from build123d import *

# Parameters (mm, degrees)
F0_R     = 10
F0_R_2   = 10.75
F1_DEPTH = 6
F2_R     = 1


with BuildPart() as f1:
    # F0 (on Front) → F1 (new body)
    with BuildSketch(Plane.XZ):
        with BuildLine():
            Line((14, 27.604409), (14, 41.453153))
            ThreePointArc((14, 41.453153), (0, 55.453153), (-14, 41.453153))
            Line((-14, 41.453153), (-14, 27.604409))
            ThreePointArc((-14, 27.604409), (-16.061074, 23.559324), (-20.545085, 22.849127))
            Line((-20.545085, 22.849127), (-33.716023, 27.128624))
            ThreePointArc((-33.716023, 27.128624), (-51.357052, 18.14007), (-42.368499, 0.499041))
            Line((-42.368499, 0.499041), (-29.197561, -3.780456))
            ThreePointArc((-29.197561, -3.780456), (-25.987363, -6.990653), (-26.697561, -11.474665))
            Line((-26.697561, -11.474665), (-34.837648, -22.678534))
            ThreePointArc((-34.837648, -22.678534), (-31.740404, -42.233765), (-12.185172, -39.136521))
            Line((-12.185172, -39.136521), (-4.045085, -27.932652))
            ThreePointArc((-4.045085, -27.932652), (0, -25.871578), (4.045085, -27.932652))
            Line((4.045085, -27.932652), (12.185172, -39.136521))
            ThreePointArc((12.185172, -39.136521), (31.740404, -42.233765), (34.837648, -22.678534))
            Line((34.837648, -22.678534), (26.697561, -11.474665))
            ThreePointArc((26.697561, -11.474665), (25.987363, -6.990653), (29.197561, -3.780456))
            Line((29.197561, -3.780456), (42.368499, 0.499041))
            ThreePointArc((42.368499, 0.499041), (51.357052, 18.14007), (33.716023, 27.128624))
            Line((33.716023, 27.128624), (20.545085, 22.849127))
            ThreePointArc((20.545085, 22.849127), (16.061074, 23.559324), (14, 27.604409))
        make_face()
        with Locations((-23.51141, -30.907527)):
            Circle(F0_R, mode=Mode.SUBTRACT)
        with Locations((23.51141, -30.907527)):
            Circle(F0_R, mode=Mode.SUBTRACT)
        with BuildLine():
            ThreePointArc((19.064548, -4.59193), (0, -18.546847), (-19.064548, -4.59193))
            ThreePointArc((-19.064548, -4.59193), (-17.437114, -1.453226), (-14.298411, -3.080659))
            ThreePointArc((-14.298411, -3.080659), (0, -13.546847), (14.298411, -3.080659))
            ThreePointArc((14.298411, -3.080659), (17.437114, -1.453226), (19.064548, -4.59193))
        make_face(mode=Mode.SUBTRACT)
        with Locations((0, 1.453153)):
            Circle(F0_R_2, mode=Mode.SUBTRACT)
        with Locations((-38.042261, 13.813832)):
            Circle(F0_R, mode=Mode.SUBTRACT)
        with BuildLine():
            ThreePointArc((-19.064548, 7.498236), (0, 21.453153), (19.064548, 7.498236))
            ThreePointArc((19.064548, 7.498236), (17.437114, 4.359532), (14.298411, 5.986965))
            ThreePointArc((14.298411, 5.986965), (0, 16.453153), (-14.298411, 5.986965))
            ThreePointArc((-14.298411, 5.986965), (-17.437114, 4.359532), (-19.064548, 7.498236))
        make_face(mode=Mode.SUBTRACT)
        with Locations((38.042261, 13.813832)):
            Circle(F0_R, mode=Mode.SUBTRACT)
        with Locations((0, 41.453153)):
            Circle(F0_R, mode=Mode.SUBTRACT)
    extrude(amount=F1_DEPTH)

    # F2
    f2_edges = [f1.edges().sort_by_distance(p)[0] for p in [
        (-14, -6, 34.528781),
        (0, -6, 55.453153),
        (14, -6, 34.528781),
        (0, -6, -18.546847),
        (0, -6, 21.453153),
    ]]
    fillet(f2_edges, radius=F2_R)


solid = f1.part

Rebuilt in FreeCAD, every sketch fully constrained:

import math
import FreeCAD as App
import Part
import Sketcher
Q = App.Units.Quantity


def edges_at(feature, points):
    """Names of the edges that pass closest to the given points."""
    edges = feature.Shape.Edges
    near = lambda p: min(range(len(edges)), key=lambda i: edges[i].distToShape(Part.Vertex(*p))[0])
    return sorted({f"Edge{near(p) + 1}" for p in points})

doc = App.newDocument("Part")
body = doc.addObject("PartDesign::Body", "Body")

# Sketch on XZ plane
sketch1 = doc.addObject("Sketcher::SketchObject", "Sketch")
body.addObject(sketch1)
sketch1.AttachmentSupport = (doc.XZ_Plane, [""])
sketch1.MapMode = "FlatFace"
sketch1.addGeometry([
    Part.LineSegment(App.Vector(14, 27.6, 0), App.Vector(14, 41.5, 0)),  # 0
    Part.ArcOfCircle(Part.Circle(App.Vector(0, 41.5, 0), App.Vector(0, 0, 1), 14), math.radians(0), math.radians(180)),  # 1
    Part.LineSegment(App.Vector(-14, 41.5, 0), App.Vector(-14, 27.6, 0)),  # 2
    Part.ArcOfCircle(Part.Circle(App.Vector(-19, 27.6, 0), App.Vector(0, 0, 1), 5), math.radians(-108), math.radians(0)),  # 3
    Part.LineSegment(App.Vector(-20.5, 22.8, 0), App.Vector(-33.7, 27.1, 0)),  # 4
    Part.ArcOfCircle(Part.Circle(App.Vector(-38, 13.8, 0), App.Vector(0, 0, 1), 14), math.radians(72), math.radians(252)),  # 5
    Part.LineSegment(App.Vector(-42.4, 0.5, 0), App.Vector(-29.2, -3.8, 0)),  # 6
    Part.ArcOfCircle(Part.Circle(App.Vector(-30.7, -8.5, 0), App.Vector(0, 0, 1), 5), math.radians(-36), math.radians(72)),  # 7
    Part.LineSegment(App.Vector(-26.7, -11.5, 0), App.Vector(-34.8, -22.7, 0)),  # 8
    Part.ArcOfCircle(Part.Circle(App.Vector(-23.5, -30.9, 0), App.Vector(0, 0, 1), 14), math.radians(144), math.radians(324)),  # 9
    Part.LineSegment(App.Vector(-12.2, -39.1, 0), App.Vector(-4, -27.9, 0)),  # 10
    Part.ArcOfCircle(Part.Circle(App.Vector(0, -30.9, 0), App.Vector(0, 0, 1), 5), math.radians(36), math.radians(144)),  # 11
    Part.LineSegment(App.Vector(4, -27.9, 0), App.Vector(12.2, -39.1, 0)),  # 12
    Part.ArcOfCircle(Part.Circle(App.Vector(23.5, -30.9, 0), App.Vector(0, 0, 1), 14), math.radians(-144), math.radians(36)),  # 13
    Part.LineSegment(App.Vector(34.8, -22.7, 0), App.Vector(26.7, -11.5, 0)),  # 14
    Part.ArcOfCircle(Part.Circle(App.Vector(30.7, -8.5, 0), App.Vector(0, 0, 1), 5), math.radians(108), math.radians(216)),  # 15
    Part.LineSegment(App.Vector(29.2, -3.8, 0), App.Vector(42.4, 0.5, 0)),  # 16
    Part.ArcOfCircle(Part.Circle(App.Vector(38, 13.8, 0), App.Vector(0, 0, 1), 14), math.radians(-72), math.radians(108)),  # 17
    Part.LineSegment(App.Vector(33.7, 27.1, 0), App.Vector(20.5, 22.8, 0)),  # 18
    Part.ArcOfCircle(Part.Circle(App.Vector(19, 27.6, 0), App.Vector(0, 0, 1), 5), math.radians(180), math.radians(288)),  # 19
    Part.Circle(App.Vector(-23.5, -30.9, 0), App.Vector(0, 0, 1), 10),  # 20
    Part.ArcOfCircle(Part.Circle(App.Vector(16.7, -3.8, 0), App.Vector(0, 0, 1), 2.5), math.radians(-18), math.radians(162)),  # 21
    Part.ArcOfCircle(Part.Circle(App.Vector(0, 1.5, 0), App.Vector(0, 0, 1), 20), math.radians(-162), math.radians(-18)),  # 22
    Part.ArcOfCircle(Part.Circle(App.Vector(-16.7, -3.8, 0), App.Vector(0, 0, 1), 2.5), math.radians(18), math.radians(198)),  # 23
    Part.ArcOfCircle(Part.Circle(App.Vector(0, 1.5, 0), App.Vector(0, 0, 1), 15), math.radians(-162), math.radians(-18)),  # 24
    Part.Circle(App.Vector(23.5, -30.9, 0), App.Vector(0, 0, 1), 10),  # 25
    Part.Circle(App.Vector(0, 1.5, 0), App.Vector(0, 0, 1), 10.8),  # 26
    Part.Circle(App.Vector(-38, 13.8, 0), App.Vector(0, 0, 1), 10),  # 27
    Part.ArcOfCircle(Part.Circle(App.Vector(-16.7, 6.7, 0), App.Vector(0, 0, 1), 2.5), math.radians(162), math.radians(342)),  # 28
    Part.ArcOfCircle(Part.Circle(App.Vector(0, 1.5, 0), App.Vector(0, 0, 1), 20), math.radians(18), math.radians(162)),  # 29
    Part.ArcOfCircle(Part.Circle(App.Vector(16.7, 6.7, 0), App.Vector(0, 0, 1), 2.5), math.radians(-162), math.radians(18)),  # 30
    Part.ArcOfCircle(Part.Circle(App.Vector(0, 1.5, 0), App.Vector(0, 0, 1), 15), math.radians(18), math.radians(162)),  # 31
    Part.Circle(App.Vector(38, 13.8, 0), App.Vector(0, 0, 1), 10),  # 32
    Part.Circle(App.Vector(0, 41.5, 0), App.Vector(0, 0, 1), 10),  # 33
], False)
sketch1.addConstraint([
    Sketcher.Constraint("Tangent", 0, 2, 1, 1),
    Sketcher.Constraint("Tangent", 1, 2, 2, 1),
    Sketcher.Constraint("Tangent", 2, 2, 3, 2),
    Sketcher.Constraint("Tangent", 3, 1, 4, 1),
    Sketcher.Constraint("Tangent", 4, 2, 5, 1),
    Sketcher.Constraint("Tangent", 5, 2, 6, 1),
    Sketcher.Constraint("Tangent", 6, 2, 7, 2),
    Sketcher.Constraint("Tangent", 7, 1, 8, 1),
    Sketcher.Constraint("Tangent", 8, 2, 9, 1),
    Sketcher.Constraint("Tangent", 9, 2, 10, 1),
    Sketcher.Constraint("Tangent", 10, 2, 11, 2),
    Sketcher.Constraint("Tangent", 11, 1, 12, 1),
    Sketcher.Constraint("Tangent", 12, 2, 13, 1),
    Sketcher.Constraint("Tangent", 13, 2, 14, 1),
    Sketcher.Constraint("Tangent", 14, 2, 15, 2),
    Sketcher.Constraint("Tangent", 15, 1, 16, 1),
    Sketcher.Constraint("Tangent", 16, 2, 17, 1),
    Sketcher.Constraint("Tangent", 17, 2, 18, 1),
    Sketcher.Constraint("Tangent", 18, 2, 19, 2),
    Sketcher.Constraint("Tangent", 19, 1, 0, 1),
    Sketcher.Constraint("Tangent", 21, 1, 22, 2),
    Sketcher.Constraint("Tangent", 22, 1, 23, 2),
    Sketcher.Constraint("Tangent", 23, 1, 24, 1),
    Sketcher.Constraint("Tangent", 24, 2, 21, 2),
    Sketcher.Constraint("Tangent", 28, 1, 29, 2),
    Sketcher.Constraint("Tangent", 29, 1, 30, 2),
    Sketcher.Constraint("Tangent", 30, 1, 31, 1),
    Sketcher.Constraint("Tangent", 31, 2, 28, 2),
    Sketcher.Constraint("Vertical", 0),
    Sketcher.Constraint("Vertical", 2),
    Sketcher.Constraint("Coincident", 20, 3, 9, 3),
    Sketcher.Constraint("Coincident", 24, 3, 22, 3),
    Sketcher.Constraint("Coincident", 25, 3, 13, 3),
    Sketcher.Constraint("Coincident", 26, 3, 22, 3),
    Sketcher.Constraint("Coincident", 27, 3, 5, 3),
    Sketcher.Constraint("Coincident", 29, 3, 22, 3),
    Sketcher.Constraint("Coincident", 31, 3, 22, 3),
    Sketcher.Constraint("Coincident", 32, 3, 17, 3),
    Sketcher.Constraint("Coincident", 33, 3, 1, 3),
    Sketcher.Constraint("Equal", 1, 5),
    Sketcher.Constraint("Equal", 3, 7),
    Sketcher.Constraint("Equal", 5, 9),
    Sketcher.Constraint("Equal", 7, 11),
    Sketcher.Constraint("Equal", 9, 13),
    Sketcher.Constraint("Equal", 11, 15),
    Sketcher.Constraint("Equal", 13, 17),
    Sketcher.Constraint("Equal", 15, 19),
    Sketcher.Constraint("Equal", 20, 25),
    Sketcher.Constraint("Equal", 25, 27),
    Sketcher.Constraint("Equal", 23, 28),
    Sketcher.Constraint("Equal", 22, 29),
    Sketcher.Constraint("Equal", 27, 32),
    Sketcher.Constraint("Equal", 32, 33),
    Sketcher.Constraint("Symmetric", 9, 3, 13, 3, -2),
    Sketcher.Constraint("Symmetric", 7, 3, 15, 3, -2),
    Sketcher.Constraint("Symmetric", 5, 3, 17, 3, -2),
    Sketcher.Constraint("Symmetric", 3, 3, 19, 3, -2),
    Sketcher.Constraint("Symmetric", 21, 3, 23, 3, -2),
    Sketcher.Constraint("PointOnObject", 11, 3, -2),
    Sketcher.Constraint("Parallel", 4, 6),
    Sketcher.Constraint("Parallel", 8, 10),
    Sketcher.Constraint("Horizontal", 28, 3, 30, 3),
    Sketcher.Constraint("Vertical", 23, 3, 28, 3),
    Sketcher.Constraint("Equal", 4, 6),
    Sketcher.Constraint("Equal", 6, 8),
    Sketcher.Constraint("Equal", 8, 10),
    Sketcher.Constraint("Diameter", 20, 20.0),
    Sketcher.Constraint("Radius", 1, 14.0),
    Sketcher.Constraint("Radius", 3, 5.0),
    Sketcher.Constraint("Radius", 22, 20.000001),
    Sketcher.Constraint("Radius", 24, 15.0),
    Sketcher.Constraint("Diameter", 26, 21.5),
    Sketcher.Constraint("Angle", 4, Q("162.000001 deg")),
    Sketcher.Constraint("DistanceY", -1, 1, 28, 3, 6.742601),
    Sketcher.Constraint("DistanceX", 5, 2, -1, 1, 42.368499),
    Sketcher.Constraint("DistanceY", 0, 1, 0, 2, 13.848744),
    Sketcher.Constraint("DistanceY", -1, 1, 3, 3, 27.604409),
    Sketcher.Constraint("DistanceX", -1, 1, 21, 3, 16.681479),
])
pad1 = doc.addObject("PartDesign::Pad", "Pad")
body.addObject(pad1)
pad1.Profile = sketch1
pad1.Length = 6
doc.recompute()

fillet = doc.addObject("PartDesign::Fillet", "Fillet")
body.addObject(fillet)
fillet.Base = (pad1, edges_at(pad1, [
    (-14, -6, 34.529),
    (0, -6, 55.453),
    (14, -6, 34.529),
    (0, -6, -18.547),
    (0, -6, 21.453),
]))
fillet.Radius = 1

doc.recompute()
